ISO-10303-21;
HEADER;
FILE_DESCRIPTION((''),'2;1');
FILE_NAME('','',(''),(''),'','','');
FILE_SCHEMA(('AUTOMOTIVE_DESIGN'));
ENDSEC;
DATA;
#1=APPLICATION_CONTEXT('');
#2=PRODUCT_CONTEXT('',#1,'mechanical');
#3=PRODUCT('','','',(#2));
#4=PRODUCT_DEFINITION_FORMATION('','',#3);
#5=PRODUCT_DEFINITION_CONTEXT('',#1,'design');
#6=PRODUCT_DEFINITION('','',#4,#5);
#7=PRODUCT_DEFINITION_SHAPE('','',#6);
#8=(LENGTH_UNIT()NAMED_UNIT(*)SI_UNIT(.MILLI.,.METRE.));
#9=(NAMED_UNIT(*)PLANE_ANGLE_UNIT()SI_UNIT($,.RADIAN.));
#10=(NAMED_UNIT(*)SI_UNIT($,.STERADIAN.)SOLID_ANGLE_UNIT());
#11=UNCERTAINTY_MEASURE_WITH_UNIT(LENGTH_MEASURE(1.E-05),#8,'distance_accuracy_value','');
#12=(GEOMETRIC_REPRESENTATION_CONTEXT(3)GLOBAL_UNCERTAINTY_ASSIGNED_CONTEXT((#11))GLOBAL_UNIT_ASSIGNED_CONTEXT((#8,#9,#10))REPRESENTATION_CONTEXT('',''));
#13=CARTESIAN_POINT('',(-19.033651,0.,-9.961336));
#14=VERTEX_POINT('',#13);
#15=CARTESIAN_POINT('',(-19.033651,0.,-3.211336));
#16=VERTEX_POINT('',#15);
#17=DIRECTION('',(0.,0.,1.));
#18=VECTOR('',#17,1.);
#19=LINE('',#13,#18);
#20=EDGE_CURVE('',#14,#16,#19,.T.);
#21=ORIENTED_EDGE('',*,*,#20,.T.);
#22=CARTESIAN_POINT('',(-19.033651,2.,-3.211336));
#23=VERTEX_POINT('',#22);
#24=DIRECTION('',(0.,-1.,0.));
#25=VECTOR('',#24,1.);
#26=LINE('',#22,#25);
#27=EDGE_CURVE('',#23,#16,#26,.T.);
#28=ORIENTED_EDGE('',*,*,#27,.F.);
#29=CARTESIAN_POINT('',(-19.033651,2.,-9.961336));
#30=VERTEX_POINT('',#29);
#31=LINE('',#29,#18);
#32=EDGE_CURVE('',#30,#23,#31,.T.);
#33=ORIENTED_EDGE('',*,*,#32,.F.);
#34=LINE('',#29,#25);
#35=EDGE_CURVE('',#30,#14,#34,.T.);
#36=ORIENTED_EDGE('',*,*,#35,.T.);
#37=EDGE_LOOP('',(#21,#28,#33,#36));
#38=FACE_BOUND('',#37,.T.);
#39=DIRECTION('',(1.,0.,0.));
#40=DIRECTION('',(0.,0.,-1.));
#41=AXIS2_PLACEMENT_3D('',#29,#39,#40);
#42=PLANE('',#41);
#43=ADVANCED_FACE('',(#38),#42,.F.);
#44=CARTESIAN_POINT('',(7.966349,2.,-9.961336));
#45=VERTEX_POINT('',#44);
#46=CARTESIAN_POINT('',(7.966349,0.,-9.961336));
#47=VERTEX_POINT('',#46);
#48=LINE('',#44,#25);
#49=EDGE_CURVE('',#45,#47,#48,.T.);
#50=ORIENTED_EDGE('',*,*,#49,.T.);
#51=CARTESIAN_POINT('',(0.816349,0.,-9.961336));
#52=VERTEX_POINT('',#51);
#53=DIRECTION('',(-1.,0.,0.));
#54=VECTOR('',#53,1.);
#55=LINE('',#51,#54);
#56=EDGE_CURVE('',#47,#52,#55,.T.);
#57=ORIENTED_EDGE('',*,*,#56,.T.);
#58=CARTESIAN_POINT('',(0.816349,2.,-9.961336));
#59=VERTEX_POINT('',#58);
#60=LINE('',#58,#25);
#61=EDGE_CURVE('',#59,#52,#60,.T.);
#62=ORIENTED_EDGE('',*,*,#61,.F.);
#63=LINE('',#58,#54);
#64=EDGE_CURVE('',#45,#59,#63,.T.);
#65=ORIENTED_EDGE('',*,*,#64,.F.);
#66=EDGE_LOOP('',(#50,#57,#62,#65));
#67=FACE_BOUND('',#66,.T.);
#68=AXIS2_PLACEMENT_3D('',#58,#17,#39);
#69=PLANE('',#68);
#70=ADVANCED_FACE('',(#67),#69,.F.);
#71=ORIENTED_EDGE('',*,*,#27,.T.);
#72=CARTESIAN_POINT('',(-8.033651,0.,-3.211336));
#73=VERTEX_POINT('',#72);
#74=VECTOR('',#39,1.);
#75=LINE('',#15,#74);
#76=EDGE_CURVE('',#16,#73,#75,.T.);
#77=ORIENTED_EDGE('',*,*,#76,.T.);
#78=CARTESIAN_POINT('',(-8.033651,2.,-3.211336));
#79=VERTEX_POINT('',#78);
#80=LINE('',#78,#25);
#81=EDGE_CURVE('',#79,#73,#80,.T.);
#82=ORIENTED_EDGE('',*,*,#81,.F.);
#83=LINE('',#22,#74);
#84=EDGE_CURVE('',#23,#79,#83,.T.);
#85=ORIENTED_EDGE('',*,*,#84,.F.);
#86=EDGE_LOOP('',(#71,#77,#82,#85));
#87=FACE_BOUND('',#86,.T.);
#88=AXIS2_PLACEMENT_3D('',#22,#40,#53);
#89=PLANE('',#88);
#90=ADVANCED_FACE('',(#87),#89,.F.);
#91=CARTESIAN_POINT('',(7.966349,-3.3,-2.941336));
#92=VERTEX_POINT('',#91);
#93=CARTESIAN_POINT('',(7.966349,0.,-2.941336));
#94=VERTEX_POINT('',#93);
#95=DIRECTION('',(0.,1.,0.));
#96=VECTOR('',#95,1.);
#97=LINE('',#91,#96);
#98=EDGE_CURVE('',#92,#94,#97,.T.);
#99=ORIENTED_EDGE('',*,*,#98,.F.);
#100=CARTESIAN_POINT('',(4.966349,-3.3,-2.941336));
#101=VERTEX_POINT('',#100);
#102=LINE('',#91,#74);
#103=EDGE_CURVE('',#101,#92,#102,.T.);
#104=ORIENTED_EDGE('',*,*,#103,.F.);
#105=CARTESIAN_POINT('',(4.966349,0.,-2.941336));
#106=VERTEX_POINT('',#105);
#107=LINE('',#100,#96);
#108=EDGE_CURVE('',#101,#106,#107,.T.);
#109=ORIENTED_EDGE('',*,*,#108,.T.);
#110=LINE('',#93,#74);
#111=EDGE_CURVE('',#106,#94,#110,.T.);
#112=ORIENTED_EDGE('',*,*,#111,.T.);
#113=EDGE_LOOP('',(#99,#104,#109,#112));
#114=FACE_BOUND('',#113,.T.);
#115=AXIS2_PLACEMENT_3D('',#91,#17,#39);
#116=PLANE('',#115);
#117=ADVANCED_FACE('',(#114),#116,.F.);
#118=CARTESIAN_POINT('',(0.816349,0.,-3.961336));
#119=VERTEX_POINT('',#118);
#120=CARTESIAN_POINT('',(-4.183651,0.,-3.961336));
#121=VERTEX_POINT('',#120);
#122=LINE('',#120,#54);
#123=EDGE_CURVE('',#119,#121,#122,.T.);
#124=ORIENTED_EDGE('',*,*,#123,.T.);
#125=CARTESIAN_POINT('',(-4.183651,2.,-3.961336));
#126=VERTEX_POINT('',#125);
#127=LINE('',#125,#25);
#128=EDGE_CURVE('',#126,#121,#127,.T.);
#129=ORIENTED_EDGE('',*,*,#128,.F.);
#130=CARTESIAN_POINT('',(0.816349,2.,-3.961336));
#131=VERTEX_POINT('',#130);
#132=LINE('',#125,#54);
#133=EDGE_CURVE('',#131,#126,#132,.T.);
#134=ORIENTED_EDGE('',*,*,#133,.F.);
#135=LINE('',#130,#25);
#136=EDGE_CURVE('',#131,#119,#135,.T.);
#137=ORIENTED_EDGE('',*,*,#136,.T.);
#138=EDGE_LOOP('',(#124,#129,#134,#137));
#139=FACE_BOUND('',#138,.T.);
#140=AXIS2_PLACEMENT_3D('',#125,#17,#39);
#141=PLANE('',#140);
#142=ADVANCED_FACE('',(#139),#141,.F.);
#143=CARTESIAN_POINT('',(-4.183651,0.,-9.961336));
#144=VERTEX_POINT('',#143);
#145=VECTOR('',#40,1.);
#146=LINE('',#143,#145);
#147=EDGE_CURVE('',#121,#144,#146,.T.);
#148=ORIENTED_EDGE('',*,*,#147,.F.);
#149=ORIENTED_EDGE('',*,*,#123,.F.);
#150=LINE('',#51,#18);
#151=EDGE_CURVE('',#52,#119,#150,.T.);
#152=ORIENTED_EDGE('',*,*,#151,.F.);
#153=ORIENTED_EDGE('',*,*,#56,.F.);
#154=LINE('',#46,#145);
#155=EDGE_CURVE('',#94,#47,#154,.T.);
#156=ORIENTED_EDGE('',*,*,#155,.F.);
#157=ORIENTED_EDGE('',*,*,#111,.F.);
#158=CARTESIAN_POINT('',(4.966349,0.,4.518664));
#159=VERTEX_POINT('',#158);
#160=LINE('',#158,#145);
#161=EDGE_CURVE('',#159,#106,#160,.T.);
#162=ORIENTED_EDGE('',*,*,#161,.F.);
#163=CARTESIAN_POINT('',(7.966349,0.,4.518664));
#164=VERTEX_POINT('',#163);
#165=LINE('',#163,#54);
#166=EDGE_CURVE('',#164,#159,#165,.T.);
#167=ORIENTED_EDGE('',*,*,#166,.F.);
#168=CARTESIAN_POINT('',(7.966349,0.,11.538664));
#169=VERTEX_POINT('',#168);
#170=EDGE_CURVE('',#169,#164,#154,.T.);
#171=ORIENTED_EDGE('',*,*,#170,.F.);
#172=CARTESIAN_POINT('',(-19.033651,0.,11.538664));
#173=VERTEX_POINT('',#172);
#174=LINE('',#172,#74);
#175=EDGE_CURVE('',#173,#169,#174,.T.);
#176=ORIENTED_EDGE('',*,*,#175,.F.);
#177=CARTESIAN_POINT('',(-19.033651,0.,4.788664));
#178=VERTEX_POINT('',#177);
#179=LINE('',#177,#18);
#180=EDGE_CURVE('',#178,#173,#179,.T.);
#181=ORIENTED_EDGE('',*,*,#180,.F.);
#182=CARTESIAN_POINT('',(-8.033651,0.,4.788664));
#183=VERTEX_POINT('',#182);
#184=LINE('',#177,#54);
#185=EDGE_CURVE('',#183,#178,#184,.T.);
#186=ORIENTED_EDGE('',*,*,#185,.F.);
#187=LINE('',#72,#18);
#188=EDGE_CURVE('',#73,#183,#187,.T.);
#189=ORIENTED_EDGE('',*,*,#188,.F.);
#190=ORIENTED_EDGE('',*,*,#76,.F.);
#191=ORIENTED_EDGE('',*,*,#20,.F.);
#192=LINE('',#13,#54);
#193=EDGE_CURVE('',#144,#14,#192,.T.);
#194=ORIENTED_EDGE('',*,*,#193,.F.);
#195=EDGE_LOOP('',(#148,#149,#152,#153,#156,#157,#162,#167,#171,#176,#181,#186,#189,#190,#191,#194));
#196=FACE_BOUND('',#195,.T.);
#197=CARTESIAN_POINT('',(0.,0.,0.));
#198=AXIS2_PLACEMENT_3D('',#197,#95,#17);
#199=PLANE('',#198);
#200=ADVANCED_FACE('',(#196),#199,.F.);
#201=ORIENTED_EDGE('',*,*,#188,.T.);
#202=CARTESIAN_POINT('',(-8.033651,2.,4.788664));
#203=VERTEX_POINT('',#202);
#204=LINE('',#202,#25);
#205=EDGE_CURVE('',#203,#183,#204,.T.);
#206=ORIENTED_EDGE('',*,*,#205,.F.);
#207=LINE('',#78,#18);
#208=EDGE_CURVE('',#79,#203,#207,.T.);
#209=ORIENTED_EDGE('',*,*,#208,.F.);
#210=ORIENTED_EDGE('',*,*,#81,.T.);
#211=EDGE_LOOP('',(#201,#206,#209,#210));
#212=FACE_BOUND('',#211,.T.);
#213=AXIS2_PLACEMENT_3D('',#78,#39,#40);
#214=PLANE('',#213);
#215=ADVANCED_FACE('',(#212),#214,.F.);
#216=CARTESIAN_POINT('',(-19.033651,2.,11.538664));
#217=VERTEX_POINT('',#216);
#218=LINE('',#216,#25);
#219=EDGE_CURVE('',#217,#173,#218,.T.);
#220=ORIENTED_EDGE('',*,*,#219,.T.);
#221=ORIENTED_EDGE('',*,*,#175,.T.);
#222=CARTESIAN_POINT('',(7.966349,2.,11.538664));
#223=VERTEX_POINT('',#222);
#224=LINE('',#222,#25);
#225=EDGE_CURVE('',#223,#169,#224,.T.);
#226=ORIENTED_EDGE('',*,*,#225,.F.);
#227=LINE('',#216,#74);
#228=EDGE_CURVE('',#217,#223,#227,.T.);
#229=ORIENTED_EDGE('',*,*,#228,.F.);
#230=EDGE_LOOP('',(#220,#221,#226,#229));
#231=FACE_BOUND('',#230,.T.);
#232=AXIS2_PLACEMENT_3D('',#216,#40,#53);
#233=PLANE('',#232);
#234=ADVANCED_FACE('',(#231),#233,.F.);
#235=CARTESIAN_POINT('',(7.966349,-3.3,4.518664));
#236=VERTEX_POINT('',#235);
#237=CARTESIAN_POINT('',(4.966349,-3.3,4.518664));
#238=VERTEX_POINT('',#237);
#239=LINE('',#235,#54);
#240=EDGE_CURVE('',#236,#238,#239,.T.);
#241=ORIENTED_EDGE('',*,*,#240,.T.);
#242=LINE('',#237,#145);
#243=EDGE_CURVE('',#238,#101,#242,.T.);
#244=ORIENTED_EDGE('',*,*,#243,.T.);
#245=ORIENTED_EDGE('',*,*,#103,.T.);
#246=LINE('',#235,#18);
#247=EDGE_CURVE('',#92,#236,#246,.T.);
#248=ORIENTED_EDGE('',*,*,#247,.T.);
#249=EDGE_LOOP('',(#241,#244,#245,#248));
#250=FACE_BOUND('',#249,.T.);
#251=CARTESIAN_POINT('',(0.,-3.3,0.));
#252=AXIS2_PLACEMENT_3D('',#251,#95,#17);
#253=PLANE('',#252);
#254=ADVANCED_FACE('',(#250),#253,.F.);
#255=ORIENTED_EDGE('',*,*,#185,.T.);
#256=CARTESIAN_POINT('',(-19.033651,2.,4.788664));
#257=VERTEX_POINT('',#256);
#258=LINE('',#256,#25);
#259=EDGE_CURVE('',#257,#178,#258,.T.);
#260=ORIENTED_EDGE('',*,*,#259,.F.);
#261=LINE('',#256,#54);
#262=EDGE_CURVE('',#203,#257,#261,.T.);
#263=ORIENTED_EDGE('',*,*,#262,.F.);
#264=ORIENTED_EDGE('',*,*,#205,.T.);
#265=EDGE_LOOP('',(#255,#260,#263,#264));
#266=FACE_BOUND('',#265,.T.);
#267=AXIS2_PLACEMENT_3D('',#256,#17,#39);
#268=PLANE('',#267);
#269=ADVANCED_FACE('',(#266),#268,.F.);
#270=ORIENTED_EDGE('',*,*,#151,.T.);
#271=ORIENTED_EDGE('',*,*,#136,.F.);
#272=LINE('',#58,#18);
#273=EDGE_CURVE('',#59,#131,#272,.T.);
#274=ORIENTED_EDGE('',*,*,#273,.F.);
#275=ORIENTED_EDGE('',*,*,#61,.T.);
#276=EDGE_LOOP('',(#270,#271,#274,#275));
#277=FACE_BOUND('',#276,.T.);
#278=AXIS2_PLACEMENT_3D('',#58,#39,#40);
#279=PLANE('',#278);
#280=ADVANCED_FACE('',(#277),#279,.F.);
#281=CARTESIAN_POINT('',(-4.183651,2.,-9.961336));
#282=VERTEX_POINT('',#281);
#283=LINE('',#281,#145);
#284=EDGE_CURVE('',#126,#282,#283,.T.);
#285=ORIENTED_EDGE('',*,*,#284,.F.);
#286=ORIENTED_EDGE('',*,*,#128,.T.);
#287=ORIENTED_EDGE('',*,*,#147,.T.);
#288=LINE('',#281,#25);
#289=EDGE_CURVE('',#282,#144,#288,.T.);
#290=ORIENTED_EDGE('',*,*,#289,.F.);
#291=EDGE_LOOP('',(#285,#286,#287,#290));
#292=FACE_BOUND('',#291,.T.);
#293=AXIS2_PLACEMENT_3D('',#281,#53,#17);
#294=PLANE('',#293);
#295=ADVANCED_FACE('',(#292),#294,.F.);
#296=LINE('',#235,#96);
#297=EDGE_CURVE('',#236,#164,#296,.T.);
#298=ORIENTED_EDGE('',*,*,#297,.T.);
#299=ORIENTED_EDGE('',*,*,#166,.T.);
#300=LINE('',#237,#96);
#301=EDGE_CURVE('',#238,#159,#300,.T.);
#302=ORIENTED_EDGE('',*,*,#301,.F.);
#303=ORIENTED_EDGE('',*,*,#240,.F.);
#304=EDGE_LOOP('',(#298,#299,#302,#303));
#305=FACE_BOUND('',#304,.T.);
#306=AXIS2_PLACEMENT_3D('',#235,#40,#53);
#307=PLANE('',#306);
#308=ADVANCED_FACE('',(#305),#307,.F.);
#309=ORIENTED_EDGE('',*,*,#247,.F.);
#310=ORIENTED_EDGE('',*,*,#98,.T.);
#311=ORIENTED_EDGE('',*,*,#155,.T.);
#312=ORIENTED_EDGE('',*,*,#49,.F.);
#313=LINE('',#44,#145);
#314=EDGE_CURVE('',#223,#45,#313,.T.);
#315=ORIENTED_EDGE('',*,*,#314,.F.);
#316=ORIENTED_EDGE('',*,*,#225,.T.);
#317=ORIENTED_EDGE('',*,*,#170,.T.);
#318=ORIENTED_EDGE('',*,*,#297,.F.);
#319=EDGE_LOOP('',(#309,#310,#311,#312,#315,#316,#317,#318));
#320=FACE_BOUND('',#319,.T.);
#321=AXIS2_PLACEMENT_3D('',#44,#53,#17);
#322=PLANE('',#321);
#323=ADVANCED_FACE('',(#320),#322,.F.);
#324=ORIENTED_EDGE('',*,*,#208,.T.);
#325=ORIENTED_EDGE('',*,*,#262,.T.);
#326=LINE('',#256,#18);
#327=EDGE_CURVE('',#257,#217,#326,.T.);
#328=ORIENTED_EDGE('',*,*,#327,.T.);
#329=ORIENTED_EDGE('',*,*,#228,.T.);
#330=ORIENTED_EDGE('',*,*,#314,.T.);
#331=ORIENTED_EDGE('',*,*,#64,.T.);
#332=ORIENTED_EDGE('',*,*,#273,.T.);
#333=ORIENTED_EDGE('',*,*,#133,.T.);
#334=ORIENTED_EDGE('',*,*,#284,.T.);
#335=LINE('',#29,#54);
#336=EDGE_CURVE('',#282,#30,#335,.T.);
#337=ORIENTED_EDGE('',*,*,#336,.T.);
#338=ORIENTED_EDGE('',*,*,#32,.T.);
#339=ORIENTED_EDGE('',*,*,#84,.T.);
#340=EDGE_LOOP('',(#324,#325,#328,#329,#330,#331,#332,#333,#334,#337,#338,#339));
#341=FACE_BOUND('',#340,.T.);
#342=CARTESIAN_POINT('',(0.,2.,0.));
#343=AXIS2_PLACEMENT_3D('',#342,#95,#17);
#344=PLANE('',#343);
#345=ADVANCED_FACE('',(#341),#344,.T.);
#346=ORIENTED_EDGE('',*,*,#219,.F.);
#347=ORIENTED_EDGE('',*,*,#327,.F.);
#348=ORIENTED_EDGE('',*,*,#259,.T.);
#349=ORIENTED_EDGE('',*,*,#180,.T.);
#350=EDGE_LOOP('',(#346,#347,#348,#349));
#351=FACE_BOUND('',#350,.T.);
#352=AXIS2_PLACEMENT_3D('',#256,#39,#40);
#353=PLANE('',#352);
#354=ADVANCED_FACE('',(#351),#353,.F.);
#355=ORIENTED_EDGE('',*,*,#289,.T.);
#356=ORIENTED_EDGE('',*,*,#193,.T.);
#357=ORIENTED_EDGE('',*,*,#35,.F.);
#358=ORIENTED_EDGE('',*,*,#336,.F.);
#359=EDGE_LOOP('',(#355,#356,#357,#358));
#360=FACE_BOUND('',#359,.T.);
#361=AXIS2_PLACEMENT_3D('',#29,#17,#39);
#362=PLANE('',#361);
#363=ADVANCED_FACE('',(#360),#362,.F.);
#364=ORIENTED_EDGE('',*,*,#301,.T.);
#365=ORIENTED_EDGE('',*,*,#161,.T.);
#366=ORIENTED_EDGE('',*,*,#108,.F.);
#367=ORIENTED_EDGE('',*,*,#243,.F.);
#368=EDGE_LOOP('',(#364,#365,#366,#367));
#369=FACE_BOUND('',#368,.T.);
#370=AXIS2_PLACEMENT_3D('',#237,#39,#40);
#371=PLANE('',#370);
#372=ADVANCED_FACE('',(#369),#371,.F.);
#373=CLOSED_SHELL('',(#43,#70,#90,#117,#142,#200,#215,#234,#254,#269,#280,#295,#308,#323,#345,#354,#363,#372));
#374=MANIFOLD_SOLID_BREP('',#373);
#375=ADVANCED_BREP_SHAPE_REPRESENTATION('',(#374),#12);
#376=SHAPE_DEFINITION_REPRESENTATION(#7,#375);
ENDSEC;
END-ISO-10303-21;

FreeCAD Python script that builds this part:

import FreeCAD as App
import Part
import Sketcher
Q = App.Units.Quantity


def add_polygon(sketch, points):
    """Adds a closed chain of lines whose ends are joined by coincident constraints."""
    first, n = sketch.GeometryCount, len(points)
    for a, b in zip(points, points[1:] + points[:1]):
        sketch.addGeometry(Part.LineSegment(App.Vector(*a, 0), App.Vector(*b, 0)), False)
    for i in range(n):
        sketch.addConstraint(Sketcher.Constraint("Coincident", first + i, 2, first + (i + 1) % n, 1))

doc = App.newDocument("Part")
body = doc.addObject("PartDesign::Body", "Body")

# Sketch on XZ plane
sketch1 = doc.addObject("Sketcher::SketchObject", "Sketch")
body.addObject(sketch1)
sketch1.AttachmentSupport = (doc.XZ_Plane, [""])
sketch1.MapMode = "FlatFace"
add_polygon(sketch1, [(-4.183651, -9.961336), (-19.033651, -9.961336), (-19.033651, -3.211336), (-8.033651, -3.211336), (-8.033651, 4.788664), (-19.033651, 4.788664), (-19.033651, 11.538664), (7.966349, 11.538664), (7.966349, -9.961336), (0.816349, -9.961336), (0.816349, -3.961336), (-4.183651, -3.961336)])  # lines 0-11
sketch1.addConstraint(Sketcher.Constraint("Horizontal", 0))
sketch1.addConstraint(Sketcher.Constraint("Vertical", 1))
sketch1.addConstraint(Sketcher.Constraint("Horizontal", 2))
sketch1.addConstraint(Sketcher.Constraint("Vertical", 3))
sketch1.addConstraint(Sketcher.Constraint("Horizontal", 4))
sketch1.addConstraint(Sketcher.Constraint("Vertical", 5))
sketch1.addConstraint(Sketcher.Constraint("Horizontal", 6))
sketch1.addConstraint(Sketcher.Constraint("Vertical", 7))
sketch1.addConstraint(Sketcher.Constraint("Horizontal", 8))
sketch1.addConstraint(Sketcher.Constraint("Vertical", 9))
sketch1.addConstraint(Sketcher.Constraint("Horizontal", 10))
sketch1.addConstraint(Sketcher.Constraint("Vertical", 11))
sketch1.addConstraint(Sketcher.Constraint("Horizontal", 0, 2, 7, 2))
sketch1.addConstraint(Sketcher.Constraint("Vertical", 1, 2, 4, 2))
sketch1.addConstraint(Sketcher.Constraint("Equal", 1, 5))
sketch1.addConstraint(Sketcher.Constraint("DistanceX", 2, 1, 2, 2, Q("11 mm")))
sketch1.addConstraint(Sketcher.Constraint("DistanceX", 6, 1, 6, 2, Q("27 mm")))
sketch1.addConstraint(Sketcher.Constraint("DistanceX", 10, 2, 10, 1, Q("5 mm")))
sketch1.addConstraint(Sketcher.Constraint("DistanceY", 3, 1, 3, 2, Q("8 mm")))
sketch1.addConstraint(Sketcher.Constraint("DistanceY", 9, 1, 9, 2, Q("6 mm")))
sketch1.addConstraint(Sketcher.Constraint("DistanceY", 7, 2, 7, 1, Q("21.5 mm")))
sketch1.addConstraint(Sketcher.Constraint("DistanceX", 0, 2, 0, 1, Q("14.85 mm")))
sketch1.addConstraint(Sketcher.Constraint("DistanceX", 0, 2, -1, 1, Q("19.033651 mm")))
sketch1.addConstraint(Sketcher.Constraint("DistanceY", 0, 2, -1, 1, Q("9.961336 mm")))
pad1 = doc.addObject("PartDesign::Pad", "Pad")
body.addObject(pad1)
pad1.Profile = sketch1
pad1.Length = 2
pad1.Reversed = True

# Sketch on XZ plane
sketch2 = doc.addObject("Sketcher::SketchObject", "Sketch001")
body.addObject(sketch2)
sketch2.AttachmentSupport = (doc.XZ_Plane, [""])
sketch2.MapMode = "FlatFace"
add_polygon(sketch2, [(4.966349, 4.518664), (4.966349, -2.941336), (7.966349, -2.941336), (7.966349, 4.518664)])  # lines 0-3
sketch2.addConstraint(Sketcher.Constraint("Vertical", 0))
sketch2.addConstraint(Sketcher.Constraint("Horizontal", 1))
sketch2.addConstraint(Sketcher.Constraint("Vertical", 2))
sketch2.addConstraint(Sketcher.Constraint("Horizontal", 3))
sketch2.addConstraint(Sketcher.Constraint("DistanceX", 1, 1, 1, 2, Q("3 mm")))
sketch2.addConstraint(Sketcher.Constraint("DistanceY", 0, 2, 0, 1, Q("7.46 mm")))
sketch2.addConstraint(Sketcher.Constraint("DistanceX", -1, 1, 0, 2, Q("4.966349 mm")))
sketch2.addConstraint(Sketcher.Constraint("DistanceY", 0, 2, -1, 1, Q("2.941336 mm")))
pad2 = doc.addObject("PartDesign::Pad", "Pad001")
body.addObject(pad2)
pad2.Profile = sketch2
pad2.Length = 3.3

doc.recompute()
